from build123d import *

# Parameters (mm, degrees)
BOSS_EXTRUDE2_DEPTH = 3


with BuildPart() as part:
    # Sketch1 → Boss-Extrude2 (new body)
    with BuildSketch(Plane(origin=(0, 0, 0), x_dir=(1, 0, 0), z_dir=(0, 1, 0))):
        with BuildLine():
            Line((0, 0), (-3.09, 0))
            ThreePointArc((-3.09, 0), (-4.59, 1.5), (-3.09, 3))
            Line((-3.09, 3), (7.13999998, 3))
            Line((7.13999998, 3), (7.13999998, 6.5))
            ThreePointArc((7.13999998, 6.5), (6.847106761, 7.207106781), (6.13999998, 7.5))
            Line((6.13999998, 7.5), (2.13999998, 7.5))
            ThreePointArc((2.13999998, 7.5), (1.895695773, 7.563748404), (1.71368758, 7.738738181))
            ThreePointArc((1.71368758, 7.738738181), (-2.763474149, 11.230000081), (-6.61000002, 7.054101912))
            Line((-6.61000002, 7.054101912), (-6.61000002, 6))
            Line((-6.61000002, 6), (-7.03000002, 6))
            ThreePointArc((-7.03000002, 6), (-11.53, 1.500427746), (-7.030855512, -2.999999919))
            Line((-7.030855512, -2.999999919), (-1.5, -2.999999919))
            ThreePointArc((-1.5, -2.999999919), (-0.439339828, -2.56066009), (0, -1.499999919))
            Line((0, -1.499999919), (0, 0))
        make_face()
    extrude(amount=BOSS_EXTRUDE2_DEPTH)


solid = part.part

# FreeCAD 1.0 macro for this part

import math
import FreeCAD as App
import Part
import Sketcher
Q = App.Units.Quantity

doc = App.newDocument("Part")
params = doc.addObject("Spreadsheet::Sheet", "Params")
for row, (alias, value) in enumerate([
    ("sketch1_radius", "1 mm"),
    ("sketch1_radius2", "1.5 mm"),
    ("sketch1_radius3", "0.5 mm"),
    ("sketch1_radius4", "4.5 mm"),
    ("sketch1_width", "4 mm"),
    ("pad1_length", "3 mm"),
], start=1):
    params.set(f"A{row}", alias)
    params.set(f"B{row}", "=" + value)
    params.setAlias(f"B{row}", alias)

body = doc.addObject("PartDesign::Body", "Body")

sketch1 = doc.addObject("Sketcher::SketchObject", "Sketch")
body.addObject(sketch1)
sketch1.AttachmentSupport = (doc.XZ_Plane, [""])
sketch1.MapMode = "FlatFace"
sketch1.addGeometry([
    Part.LineSegment(App.Vector(0, 0, 0), App.Vector(-3.09, 0, 0)),
    Part.ArcOfCircle(Part.Circle(App.Vector(-3.09, -1.5, 0), App.Vector(0, 0, 1), 1.5), math.radians(90), math.radians(270)),
    Part.LineSegment(App.Vector(-3.09, -3, 0), App.Vector(7.14, -3, 0)),
    Part.LineSegment(App.Vector(7.14, -3, 0), App.Vector(7.14, -6.5, 0)),
    Part.ArcOfCircle(Part.Circle(App.Vector(6.14, -6.5, 0), App.Vector(0, 0, 1), 1), math.radians(-90), math.radians(0)),
    Part.LineSegment(App.Vector(6.14, -7.5, 0), App.Vector(2.14, -7.5, 0)),
    Part.ArcOfCircle(Part.Circle(App.Vector(2.14, -8, 0), App.Vector(0, 0, 1), 0.5), math.radians(90), math.radians(148)),
    Part.ArcOfCircle(Part.Circle(App.Vector(-2.42, -7.05, 0), App.Vector(0, 0, 1), 4.19), math.radians(180), math.radians(351)),
    Part.LineSegment(App.Vector(-6.61, -7.05, 0), App.Vector(-6.61, -6, 0)),
    Part.LineSegment(App.Vector(-6.61, -6, 0), App.Vector(-7.03, -6, 0)),
    Part.ArcOfCircle(Part.Circle(App.Vector(-7.03, -1.5, 0), App.Vector(0, 0, 1), 4.5), math.radians(90), math.radians(270)),
    Part.LineSegment(App.Vector(-7.03, 3, 0), App.Vector(-1.5, 3, 0)),
    Part.ArcOfCircle(Part.Circle(App.Vector(-1.5, 1.5, 0), App.Vector(0, 0, 1), 1.5), math.radians(0), math.radians(90)),
    Part.LineSegment(App.Vector(0, 1.5, 0), App.Vector(0, 0, 0)),
], False)
sketch1.addConstraint([
    Sketcher.Constraint("Tangent", 0, 2, 1, 1),
    Sketcher.Constraint("Tangent", 1, 2, 2, 1),
    Sketcher.Constraint("Coincident", 2, 2, 3, 1),
    Sketcher.Constraint("Tangent", 3, 2, 4, 2),
    Sketcher.Constraint("Tangent", 4, 1, 5, 1),
    Sketcher.Constraint("Tangent", 5, 2, 6, 1),
    Sketcher.Constraint("Coincident", 6, 2, 7, 2),
    Sketcher.Constraint("Tangent", 7, 1, 8, 1),
    Sketcher.Constraint("Coincident", 8, 2, 9, 1),
    Sketcher.Constraint("Tangent", 9, 2, 10, 2),
    Sketcher.Constraint("Coincident", 10, 1, 11, 1),
    Sketcher.Constraint("Tangent", 11, 2, 12, 2),
    Sketcher.Constraint("Tangent", 12, 1, 13, 1),
    Sketcher.Constraint("Coincident", 13, 2, 0, 1),
    Sketcher.Constraint("Horizontal", 0),
    Sketcher.Constraint("Horizontal", 2),
    Sketcher.Constraint("Vertical", 3),
    Sketcher.Constraint("Horizontal", 5),
    Sketcher.Constraint("Vertical", 8),
    Sketcher.Constraint("Horizontal", 9),
    Sketcher.Constraint("Horizontal", 11),
    Sketcher.Constraint("Vertical", 13),
    Sketcher.Constraint("Coincident", 13, 2, -1, 1),
    Sketcher.Constraint("Equal", 1, 12),
    Sketcher.Constraint("Horizontal", 1, 3, 10, 3),
    Sketcher.Constraint("Radius", 4, Q("1 mm")),
    Sketcher.Constraint("Radius", 1, Q("1.5 mm")),
    Sketcher.Constraint("Radius", 6, Q("0.5 mm")),
    Sketcher.Constraint("Radius", 10, Q("4.5 mm")),
    Sketcher.Constraint("DistanceX", 5, 2, 5, 1, Q("4 mm")),
    Sketcher.Constraint("Radius", 7, Q("4.19 mm")),
    Sketcher.Constraint("DistanceY", 3, 2, 3, 1, Q("3.5 mm")),
    Sketcher.Constraint("DistanceX", 0, 2, 0, 1, Q("3.09 mm")),
    Sketcher.Constraint("DistanceX", 2, 1, 2, 2, Q("10.23 mm")),
    Sketcher.Constraint("DistanceX", 9, 2, 9, 1, Q("0.42 mm")),
    Sketcher.Constraint("DistanceX", 7, 3, -1, 1, Q("2.42 mm")),
    Sketcher.Constraint("DistanceY", 8, 1, 8, 2, Q("1.054102 mm")),
    Sketcher.Constraint("DistanceX", 11, 1, 11, 2, Q("5.530856 mm")),
])
sketch1.setExpression("Constraints[25]", "Params.sketch1_radius")
sketch1.setExpression("Constraints[26]", "Params.sketch1_radius2")
sketch1.setExpression("Constraints[27]", "Params.sketch1_radius3")
sketch1.setExpression("Constraints[28]", "Params.sketch1_radius4")
sketch1.setExpression("Constraints[29]", "Params.sketch1_width")
pad1 = doc.addObject("PartDesign::Pad", "Pad")
body.addObject(pad1)
pad1.Profile = sketch1
pad1.setExpression("Length", "Params.pad1_length")
pad1.Reversed = True

doc.recompute()
